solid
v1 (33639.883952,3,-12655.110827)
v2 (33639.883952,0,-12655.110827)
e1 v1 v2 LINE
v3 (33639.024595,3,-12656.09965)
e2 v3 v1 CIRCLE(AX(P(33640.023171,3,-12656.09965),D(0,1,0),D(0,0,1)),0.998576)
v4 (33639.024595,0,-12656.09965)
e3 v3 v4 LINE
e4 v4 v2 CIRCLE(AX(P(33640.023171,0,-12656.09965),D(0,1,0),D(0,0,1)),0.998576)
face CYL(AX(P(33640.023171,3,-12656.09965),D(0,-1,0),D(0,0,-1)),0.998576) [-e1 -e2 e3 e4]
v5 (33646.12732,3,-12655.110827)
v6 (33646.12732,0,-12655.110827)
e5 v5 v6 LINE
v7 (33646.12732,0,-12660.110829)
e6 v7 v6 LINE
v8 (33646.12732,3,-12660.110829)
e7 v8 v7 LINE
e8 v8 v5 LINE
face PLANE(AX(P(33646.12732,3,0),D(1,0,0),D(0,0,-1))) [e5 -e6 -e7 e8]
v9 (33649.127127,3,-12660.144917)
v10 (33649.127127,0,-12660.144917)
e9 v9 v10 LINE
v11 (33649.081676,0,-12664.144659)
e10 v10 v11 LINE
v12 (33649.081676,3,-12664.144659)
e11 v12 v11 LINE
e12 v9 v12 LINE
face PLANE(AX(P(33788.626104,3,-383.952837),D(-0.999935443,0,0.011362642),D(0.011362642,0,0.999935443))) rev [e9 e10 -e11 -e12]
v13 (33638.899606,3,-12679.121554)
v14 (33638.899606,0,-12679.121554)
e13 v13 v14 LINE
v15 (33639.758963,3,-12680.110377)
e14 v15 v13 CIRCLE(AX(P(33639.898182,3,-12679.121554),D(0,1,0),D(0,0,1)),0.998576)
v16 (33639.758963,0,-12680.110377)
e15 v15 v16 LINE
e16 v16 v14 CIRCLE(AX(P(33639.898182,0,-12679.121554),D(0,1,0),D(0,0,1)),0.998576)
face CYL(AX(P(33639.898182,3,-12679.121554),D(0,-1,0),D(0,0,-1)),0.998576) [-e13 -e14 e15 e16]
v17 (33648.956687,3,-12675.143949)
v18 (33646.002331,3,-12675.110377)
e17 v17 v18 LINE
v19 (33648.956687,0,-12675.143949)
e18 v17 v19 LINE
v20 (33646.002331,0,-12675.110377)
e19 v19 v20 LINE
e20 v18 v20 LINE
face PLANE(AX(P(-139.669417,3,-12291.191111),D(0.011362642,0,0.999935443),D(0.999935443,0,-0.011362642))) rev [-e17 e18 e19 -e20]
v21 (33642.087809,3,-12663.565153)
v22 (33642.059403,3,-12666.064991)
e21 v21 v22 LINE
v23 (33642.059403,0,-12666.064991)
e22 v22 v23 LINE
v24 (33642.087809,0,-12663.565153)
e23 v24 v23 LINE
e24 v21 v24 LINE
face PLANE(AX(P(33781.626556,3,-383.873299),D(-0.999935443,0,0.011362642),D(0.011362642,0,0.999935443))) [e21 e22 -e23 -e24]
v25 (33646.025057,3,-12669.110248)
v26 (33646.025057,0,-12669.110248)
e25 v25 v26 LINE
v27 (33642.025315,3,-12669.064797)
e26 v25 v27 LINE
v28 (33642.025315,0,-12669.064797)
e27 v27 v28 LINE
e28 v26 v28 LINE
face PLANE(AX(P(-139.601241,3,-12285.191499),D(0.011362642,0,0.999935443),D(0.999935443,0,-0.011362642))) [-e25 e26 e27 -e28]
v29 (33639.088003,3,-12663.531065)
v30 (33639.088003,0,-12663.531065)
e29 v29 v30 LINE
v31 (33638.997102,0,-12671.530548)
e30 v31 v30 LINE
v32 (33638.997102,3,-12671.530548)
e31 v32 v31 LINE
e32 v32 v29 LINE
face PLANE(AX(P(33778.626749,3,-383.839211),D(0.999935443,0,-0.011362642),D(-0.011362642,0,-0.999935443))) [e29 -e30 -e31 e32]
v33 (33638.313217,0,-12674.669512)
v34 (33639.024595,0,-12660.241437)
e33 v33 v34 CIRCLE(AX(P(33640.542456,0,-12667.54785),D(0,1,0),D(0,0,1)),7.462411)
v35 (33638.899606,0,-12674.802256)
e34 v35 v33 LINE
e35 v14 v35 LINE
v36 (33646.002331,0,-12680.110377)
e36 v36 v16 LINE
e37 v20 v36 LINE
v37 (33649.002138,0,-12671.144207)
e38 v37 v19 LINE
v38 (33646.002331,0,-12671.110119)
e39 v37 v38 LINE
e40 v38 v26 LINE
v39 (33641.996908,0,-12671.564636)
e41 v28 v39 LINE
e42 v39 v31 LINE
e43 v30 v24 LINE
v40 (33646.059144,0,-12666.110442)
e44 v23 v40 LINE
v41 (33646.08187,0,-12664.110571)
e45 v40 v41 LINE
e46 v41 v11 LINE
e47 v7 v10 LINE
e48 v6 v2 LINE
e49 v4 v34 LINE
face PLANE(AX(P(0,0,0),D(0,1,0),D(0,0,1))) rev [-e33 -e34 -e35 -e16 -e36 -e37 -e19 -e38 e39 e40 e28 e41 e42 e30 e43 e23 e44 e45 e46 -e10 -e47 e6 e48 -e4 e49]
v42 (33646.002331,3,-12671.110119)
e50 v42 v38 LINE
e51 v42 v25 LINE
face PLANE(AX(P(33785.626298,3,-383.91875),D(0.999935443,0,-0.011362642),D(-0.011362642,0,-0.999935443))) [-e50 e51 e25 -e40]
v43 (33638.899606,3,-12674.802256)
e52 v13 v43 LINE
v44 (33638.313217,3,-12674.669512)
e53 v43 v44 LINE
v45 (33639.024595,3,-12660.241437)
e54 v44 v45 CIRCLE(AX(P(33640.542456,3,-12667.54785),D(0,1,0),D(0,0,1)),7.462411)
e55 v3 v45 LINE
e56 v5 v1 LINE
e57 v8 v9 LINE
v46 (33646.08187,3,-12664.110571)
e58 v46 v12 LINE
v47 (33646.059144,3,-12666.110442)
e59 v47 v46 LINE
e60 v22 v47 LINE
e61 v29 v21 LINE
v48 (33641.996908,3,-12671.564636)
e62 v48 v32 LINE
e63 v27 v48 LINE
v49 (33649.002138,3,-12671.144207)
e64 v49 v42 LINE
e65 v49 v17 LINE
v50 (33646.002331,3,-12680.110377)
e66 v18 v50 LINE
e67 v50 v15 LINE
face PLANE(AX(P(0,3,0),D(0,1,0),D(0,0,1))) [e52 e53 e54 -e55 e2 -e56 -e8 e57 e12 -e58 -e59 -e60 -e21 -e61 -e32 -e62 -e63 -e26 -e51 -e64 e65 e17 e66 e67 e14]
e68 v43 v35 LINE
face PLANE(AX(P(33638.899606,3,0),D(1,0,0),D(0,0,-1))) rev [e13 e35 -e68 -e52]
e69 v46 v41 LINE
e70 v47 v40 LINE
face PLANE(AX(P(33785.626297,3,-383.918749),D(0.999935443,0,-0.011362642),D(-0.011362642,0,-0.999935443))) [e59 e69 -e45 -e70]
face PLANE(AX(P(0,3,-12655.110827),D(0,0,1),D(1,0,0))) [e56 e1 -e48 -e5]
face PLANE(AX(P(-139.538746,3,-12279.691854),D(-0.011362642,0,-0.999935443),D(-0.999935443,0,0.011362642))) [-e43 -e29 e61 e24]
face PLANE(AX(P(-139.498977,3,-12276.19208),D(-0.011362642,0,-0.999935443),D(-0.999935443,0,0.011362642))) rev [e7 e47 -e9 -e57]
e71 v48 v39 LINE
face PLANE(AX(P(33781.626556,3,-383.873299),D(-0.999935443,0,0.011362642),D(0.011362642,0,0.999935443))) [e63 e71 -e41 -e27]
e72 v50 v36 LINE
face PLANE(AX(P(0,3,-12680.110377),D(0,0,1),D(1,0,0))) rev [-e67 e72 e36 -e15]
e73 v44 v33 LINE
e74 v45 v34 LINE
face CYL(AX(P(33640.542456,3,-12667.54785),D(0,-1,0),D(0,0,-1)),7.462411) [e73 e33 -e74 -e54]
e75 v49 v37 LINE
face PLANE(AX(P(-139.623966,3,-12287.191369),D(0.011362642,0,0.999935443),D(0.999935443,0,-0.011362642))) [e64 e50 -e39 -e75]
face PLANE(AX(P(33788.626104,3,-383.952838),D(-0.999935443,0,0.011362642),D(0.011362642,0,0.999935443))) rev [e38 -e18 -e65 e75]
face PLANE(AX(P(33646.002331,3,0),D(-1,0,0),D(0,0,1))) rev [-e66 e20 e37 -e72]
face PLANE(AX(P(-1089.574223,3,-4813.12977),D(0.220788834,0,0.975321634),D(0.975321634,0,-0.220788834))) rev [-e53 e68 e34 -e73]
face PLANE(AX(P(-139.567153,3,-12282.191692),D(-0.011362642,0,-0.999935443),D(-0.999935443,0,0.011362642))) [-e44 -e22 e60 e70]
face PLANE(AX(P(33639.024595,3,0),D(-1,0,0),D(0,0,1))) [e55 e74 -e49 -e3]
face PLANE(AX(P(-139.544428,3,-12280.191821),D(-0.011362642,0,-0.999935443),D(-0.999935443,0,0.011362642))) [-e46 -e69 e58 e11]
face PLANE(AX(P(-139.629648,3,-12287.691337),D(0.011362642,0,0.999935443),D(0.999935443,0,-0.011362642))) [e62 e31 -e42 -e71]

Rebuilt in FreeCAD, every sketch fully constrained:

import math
import FreeCAD as App
import Part
import Sketcher
from FreeCAD import Vector

doc = App.newDocument("Part")
body = doc.addObject("PartDesign::Body", "Body")

sketch1 = body.newObject("Sketcher::SketchObject", "Sketch")
sketch1.AttachmentSupport = (doc.getObject("XZ_Plane"), [""])
sketch1.MapMode = "FlatFace"
sketch1.addGeometry([
    Part.LineSegment(Vector(33638.9, -12674.8, 0), Vector(33638.3, -12674.7, 0)),
    Part.ArcOfCircle(Part.Circle(Vector(33640.5, -12667.5, 0), Vector(0, 0, 1), 7.5), math.radians(102), math.radians(253)),
    Part.LineSegment(Vector(33639, -12660.2, 0), Vector(33639, -12656.1, 0)),
    Part.ArcOfCircle(Part.Circle(Vector(33640, -12656.1, 0), Vector(0, 0, 1), 1), math.radians(98), math.radians(180)),
    Part.LineSegment(Vector(33639.9, -12655.1, 0), Vector(33646.1, -12655.1, 0)),
    Part.LineSegment(Vector(33646.1, -12655.1, 0), Vector(33646.1, -12660.1, 0)),
    Part.LineSegment(Vector(33646.1, -12660.1, 0), Vector(33649.1, -12660.1, 0)),
    Part.LineSegment(Vector(33649.1, -12660.1, 0), Vector(33649.1, -12664.1, 0)),
    Part.LineSegment(Vector(33649.1, -12664.1, 0), Vector(33646.1, -12664.1, 0)),
    Part.LineSegment(Vector(33646.1, -12664.1, 0), Vector(33646.1, -12666.1, 0)),
    Part.LineSegment(Vector(33646.1, -12666.1, 0), Vector(33642.1, -12666.1, 0)),
    Part.LineSegment(Vector(33642.1, -12666.1, 0), Vector(33642.1, -12663.6, 0)),
    Part.LineSegment(Vector(33642.1, -12663.6, 0), Vector(33639.1, -12663.5, 0)),
    Part.LineSegment(Vector(33639.1, -12663.5, 0), Vector(33639.1, -12666, 0)),
    Part.LineSegment(Vector(33639.1, -12666, 0), Vector(33639, -12669, 0)),
    Part.LineSegment(Vector(33639, -12669, 0), Vector(33639, -12671.5, 0)),
    Part.LineSegment(Vector(33639, -12671.5, 0), Vector(33642, -12671.6, 0)),
    Part.LineSegment(Vector(33642, -12671.6, 0), Vector(33642, -12669.1, 0)),
    Part.LineSegment(Vector(33642, -12669.1, 0), Vector(33646, -12669.1, 0)),
    Part.LineSegment(Vector(33646, -12669.1, 0), Vector(33646, -12671.1, 0)),
    Part.LineSegment(Vector(33646, -12671.1, 0), Vector(33649, -12671.1, 0)),
    Part.LineSegment(Vector(33649, -12671.1, 0), Vector(33649, -12675.1, 0)),
    Part.LineSegment(Vector(33649, -12675.1, 0), Vector(33646, -12675.1, 0)),
    Part.LineSegment(Vector(33646, -12675.1, 0), Vector(33646, -12680.1, 0)),
    Part.LineSegment(Vector(33646, -12680.1, 0), Vector(33639.8, -12680.1, 0)),
    Part.ArcOfCircle(Part.Circle(Vector(33639.9, -12679.1, 0), Vector(0, 0, 1), 1), math.radians(180), math.radians(262)),
    Part.LineSegment(Vector(33638.9, -12679.1, 0), Vector(33638.9, -12674.8, 0)),
], False)
sketch1.addConstraint([
    Sketcher.Constraint("Coincident", 0, 2, 1, 2),
    Sketcher.Constraint("Coincident", 1, 1, 2, 1),
    Sketcher.Constraint("Tangent", 2, 2, 3, 2),
    Sketcher.Constraint("Coincident", 3, 1, 4, 1),
    Sketcher.Constraint("Coincident", 4, 2, 5, 1),
    Sketcher.Constraint("Coincident", 5, 2, 6, 1),
    Sketcher.Constraint("Coincident", 6, 2, 7, 1),
    Sketcher.Constraint("Coincident", 7, 2, 8, 1),
    Sketcher.Constraint("Coincident", 8, 2, 9, 1),
    Sketcher.Constraint("Coincident", 9, 2, 10, 1),
    Sketcher.Constraint("Coincident", 10, 2, 11, 1),
    Sketcher.Constraint("Coincident", 11, 2, 12, 1),
    Sketcher.Constraint("Coincident", 12, 2, 13, 1),
    Sketcher.Constraint("Coincident", 13, 2, 14, 1),
    Sketcher.Constraint("Coincident", 14, 2, 15, 1),
    Sketcher.Constraint("Coincident", 15, 2, 16, 1),
    Sketcher.Constraint("Coincident", 16, 2, 17, 1),
    Sketcher.Constraint("Coincident", 17, 2, 18, 1),
    Sketcher.Constraint("Coincident", 18, 2, 19, 1),
    Sketcher.Constraint("Coincident", 19, 2, 20, 1),
    Sketcher.Constraint("Coincident", 20, 2, 21, 1),
    Sketcher.Constraint("Coincident", 21, 2, 22, 1),
    Sketcher.Constraint("Coincident", 22, 2, 23, 1),
    Sketcher.Constraint("Coincident", 23, 2, 24, 1),
    Sketcher.Constraint("Coincident", 24, 2, 25, 2),
    Sketcher.Constraint("Tangent", 25, 1, 26, 1),
    Sketcher.Constraint("Coincident", 26, 2, 0, 1),
    Sketcher.Constraint("Vertical", 2),
    Sketcher.Constraint("Horizontal", 4),
    Sketcher.Constraint("Vertical", 23),
    Sketcher.Constraint("Horizontal", 24),
    Sketcher.Constraint("Vertical", 26),
    Sketcher.Constraint("Equal", 3, 25),
    Sketcher.Constraint("Perpendicular", 6, 7),
    Sketcher.Constraint("Perpendicular", 7, 8),
    Sketcher.Constraint("Perpendicular", 8, 9),
    Sketcher.Constraint("Perpendicular", 9, 10),
    Sketcher.Constraint("Perpendicular", 10, 11),
    Sketcher.Constraint("Perpendicular", 11, 12),
    Sketcher.Constraint("Perpendicular", 12, 13),
    Sketcher.Constraint("Parallel", 13, 14),
    Sketcher.Constraint("Parallel", 14, 15),
    Sketcher.Constraint("Perpendicular", 15, 16),
    Sketcher.Constraint("Perpendicular", 16, 17),
    Sketcher.Constraint("Perpendicular", 17, 18),
    Sketcher.Constraint("Perpendicular", 18, 19),
    Sketcher.Constraint("Perpendicular", 19, 20),
    Sketcher.Constraint("Perpendicular", 20, 21),
    Sketcher.Constraint("Perpendicular", 21, 22),
    Sketcher.Constraint("Vertical", 19, 2, 22, 2),
    Sketcher.Constraint("Equal", 4, 24),
    Sketcher.Constraint("Equal", 7, 10),
    Sketcher.Constraint("Equal", 8, 12),
    Sketcher.Constraint("Equal", 11, 13),
    Sketcher.Constraint("Equal", 12, 14),
    Sketcher.Constraint("Equal", 13, 15),
    Sketcher.Constraint("Equal", 14, 16),
    Sketcher.Constraint("Equal", 15, 17),
    Sketcher.Constraint("Equal", 10, 18),
    Sketcher.Constraint("Equal", 9, 19),
    Sketcher.Constraint("Equal", 16, 20),
    Sketcher.Constraint("Equal", 18, 21),
    Sketcher.Constraint("DistanceY", 23, 2, 23, 1, 5.0),
    Sketcher.Constraint("Distance", 5, 5.0),
    Sketcher.Constraint("Distance", 7, 4.0),
    Sketcher.Constraint("Distance", 8, 3.0),
    Sketcher.Constraint("Distance", 9, 2.0),
    Sketcher.Constraint("DistanceX", 5, 2, 6, 2, 3.0),
    Sketcher.Constraint("Distance", 11, 2.5),
    Sketcher.Constraint("Radius", 1, 7.462411),
    Sketcher.Constraint("Radius", 3, 0.998576),
    Sketcher.Constraint("DistanceX", 1, 1, 13, 2, 0.035001),
    Sketcher.Constraint("DistanceX", -1, 1, 15, 2, 33638.997102),
    Sketcher.Constraint("DistanceY", 1, 3, 3, 3, 11.4482),
    Sketcher.Constraint("DistanceX", 12, 2, 10, 2, 2.9714),
    Sketcher.Constraint("DistanceX", 4, 1, 4, 2, 6.243368),
    Sketcher.Constraint("DistanceY", 2, 1, 2, 2, 4.141787),
    Sketcher.Constraint("DistanceY", 26, 1, 26, 2, 4.319297),
    Sketcher.Constraint("DistanceY", 1, 3, -1, 1, 12667.54785),
    Sketcher.Constraint("DistanceX", -1, 1, 25, 3, 33639.898182),
    Sketcher.Constraint("DistanceX", -1, 1, 4, 2, 33646.12732),
    Sketcher.Constraint("DistanceY", 25, 3, 0, 2, 4.452042),
])
pad1 = body.newObject("PartDesign::Pad", "Pad")
pad1.Profile = sketch1
pad1.Length = 3
pad1.Reversed = True

doc.recompute()
